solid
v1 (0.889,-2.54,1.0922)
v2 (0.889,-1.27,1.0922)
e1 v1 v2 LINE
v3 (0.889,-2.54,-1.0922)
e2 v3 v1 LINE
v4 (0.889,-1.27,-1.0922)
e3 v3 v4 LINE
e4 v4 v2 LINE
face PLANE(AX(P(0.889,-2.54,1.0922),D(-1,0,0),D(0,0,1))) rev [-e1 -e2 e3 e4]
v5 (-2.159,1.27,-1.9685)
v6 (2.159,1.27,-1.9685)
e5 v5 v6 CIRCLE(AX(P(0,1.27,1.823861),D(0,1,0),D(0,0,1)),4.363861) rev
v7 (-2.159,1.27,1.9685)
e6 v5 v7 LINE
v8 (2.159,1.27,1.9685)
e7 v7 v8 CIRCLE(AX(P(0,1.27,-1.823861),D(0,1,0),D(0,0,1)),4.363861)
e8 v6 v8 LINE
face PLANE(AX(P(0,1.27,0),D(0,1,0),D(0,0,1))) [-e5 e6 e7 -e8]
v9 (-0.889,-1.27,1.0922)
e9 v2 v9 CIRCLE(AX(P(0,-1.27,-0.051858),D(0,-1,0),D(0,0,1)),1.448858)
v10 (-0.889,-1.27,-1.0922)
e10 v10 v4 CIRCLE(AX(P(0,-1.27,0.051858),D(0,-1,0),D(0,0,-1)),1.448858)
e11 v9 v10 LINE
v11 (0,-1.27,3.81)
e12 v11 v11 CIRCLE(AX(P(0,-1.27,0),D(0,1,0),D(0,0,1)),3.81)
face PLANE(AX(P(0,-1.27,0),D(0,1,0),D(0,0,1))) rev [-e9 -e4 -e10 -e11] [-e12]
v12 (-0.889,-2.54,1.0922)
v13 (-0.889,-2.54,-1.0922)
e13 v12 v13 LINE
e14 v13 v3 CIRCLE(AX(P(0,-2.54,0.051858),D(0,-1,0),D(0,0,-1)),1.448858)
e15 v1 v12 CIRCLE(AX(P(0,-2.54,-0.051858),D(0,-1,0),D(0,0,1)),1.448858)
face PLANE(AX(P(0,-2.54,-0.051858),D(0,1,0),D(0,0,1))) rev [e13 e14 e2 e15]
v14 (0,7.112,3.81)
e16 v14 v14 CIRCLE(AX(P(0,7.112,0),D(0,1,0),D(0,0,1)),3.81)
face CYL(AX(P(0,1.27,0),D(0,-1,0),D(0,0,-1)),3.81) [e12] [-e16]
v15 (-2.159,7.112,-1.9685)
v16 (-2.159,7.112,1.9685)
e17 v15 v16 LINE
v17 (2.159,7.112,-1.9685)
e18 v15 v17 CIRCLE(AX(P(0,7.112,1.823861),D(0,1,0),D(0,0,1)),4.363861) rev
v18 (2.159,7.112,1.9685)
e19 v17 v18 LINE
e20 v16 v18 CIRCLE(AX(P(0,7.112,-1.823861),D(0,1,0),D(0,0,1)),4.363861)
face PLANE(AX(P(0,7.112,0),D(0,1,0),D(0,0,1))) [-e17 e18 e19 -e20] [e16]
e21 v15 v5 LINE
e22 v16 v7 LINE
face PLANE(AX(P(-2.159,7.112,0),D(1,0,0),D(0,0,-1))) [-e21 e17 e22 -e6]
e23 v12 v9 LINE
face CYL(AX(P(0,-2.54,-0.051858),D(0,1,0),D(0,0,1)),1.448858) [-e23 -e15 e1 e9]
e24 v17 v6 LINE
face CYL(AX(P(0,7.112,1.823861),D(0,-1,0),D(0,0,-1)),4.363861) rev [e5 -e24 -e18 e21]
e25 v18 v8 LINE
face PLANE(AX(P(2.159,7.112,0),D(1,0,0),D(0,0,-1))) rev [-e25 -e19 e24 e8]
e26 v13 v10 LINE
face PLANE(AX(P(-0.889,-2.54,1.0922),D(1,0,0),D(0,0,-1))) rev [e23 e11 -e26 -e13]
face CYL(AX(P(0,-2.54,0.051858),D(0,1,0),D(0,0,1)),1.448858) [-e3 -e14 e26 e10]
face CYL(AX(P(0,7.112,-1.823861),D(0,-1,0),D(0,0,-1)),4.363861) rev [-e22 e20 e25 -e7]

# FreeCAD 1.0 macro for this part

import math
import FreeCAD as App
import Part
import Sketcher
from FreeCAD import Vector
Q = App.Units.Quantity

doc = App.newDocument("Part")
body = doc.addObject("PartDesign::Body", "Body")

sketch1 = body.newObject("Sketcher::SketchObject", "Sketch")
sketch1.AttachmentSupport = (doc.getObject("XZ_Plane"), [""])
sketch1.MapMode = "FlatFace"
sketch1.addGeometry(Part.Circle(Vector(0, 0, 0), Vector(0, 0, 1), 3.8), False)
sketch1.addConstraint(Sketcher.Constraint("Coincident", 0, 3, -1, 1))
sketch1.addConstraint(Sketcher.Constraint("Diameter", 0, Q("0.3 in")))
pad1 = body.newObject("PartDesign::Pad", "Pad")
pad1.Profile = sketch1
pad1.Length = Q("0.1 in")
pad1.Midplane = True

sketch2 = body.newObject("Sketcher::SketchObject", "Sketch001")
sketch2.AttachmentSupport = (doc.getObject("XZ_Plane"), [""])
sketch2.MapMode = "FlatFace"
sketch2.AttachmentOffset = App.Placement(Vector(0, 0, 0.05 * 25.4), App.Rotation())
sketch2.addGeometry(Part.LineSegment(Vector(-0.9, 1.1, 0), Vector(-0.9, -1.1, 0)), False)
sketch2.addGeometry(Part.ArcOfCircle(Part.Circle(Vector(0, 0.1, 0), Vector(0, 0, 1), 1.4), math.radians(-128), math.radians(-52)), False)
sketch2.addGeometry(Part.LineSegment(Vector(0.9, -1.1, 0), Vector(0.9, 1.1, 0)), False)
sketch2.addGeometry(Part.ArcOfCircle(Part.Circle(Vector(0, -0.1, 0), Vector(0, 0, 1), 1.4), math.radians(52), math.radians(128)), False)
sketch2.addConstraint(Sketcher.Constraint("Coincident", 0, 2, 1, 1))
sketch2.addConstraint(Sketcher.Constraint("Coincident", 1, 2, 2, 1))
sketch2.addConstraint(Sketcher.Constraint("Coincident", 2, 2, 3, 1))
sketch2.addConstraint(Sketcher.Constraint("Coincident", 3, 2, 0, 1))
sketch2.addConstraint(Sketcher.Constraint("Vertical", 0))
sketch2.addConstraint(Sketcher.Constraint("Vertical", 2))
sketch2.addConstraint(Sketcher.Constraint("Equal", 1, 3))
sketch2.addConstraint(Sketcher.Constraint("Symmetric", 1, 3, 3, 3, -1, 1))
sketch2.addConstraint(Sketcher.Constraint("Symmetric", 0, 2, 1, 2, -2))
sketch2.addConstraint(Sketcher.Constraint("DistanceY", 0, 2, 0, 1, Q("0.086 in")))
sketch2.addConstraint(Sketcher.Constraint("DistanceX", 0, 2, 1, 2, Q("0.07 in")))
sketch2.addConstraint(Sketcher.Constraint("Radius", 1, 1.448858))
pad2 = body.newObject("PartDesign::Pad", "Pad001")
pad2.Profile = sketch2
pad2.Length = Q("0.05 in")

sketch3 = body.newObject("Sketcher::SketchObject", "Sketch002")
sketch3.AttachmentSupport = (doc.getObject("XZ_Plane"), [""])
sketch3.MapMode = "FlatFace"
sketch3.AttachmentOffset = App.Placement(Vector(0, 0, -0.28 * 25.4), App.Rotation())
sketch3.addGeometry(Part.Circle(Vector(0, 0, 0), Vector(0, 0, 1), 3.8), False)
sketch3.addGeometry(Part.LineSegment(Vector(-2.2, 2, 0), Vector(-2.2, -2, 0)), False)
sketch3.addGeometry(Part.ArcOfCircle(Part.Circle(Vector(0, 1.8, 0), Vector(0, 0, 1), 4.4), math.radians(-120), math.radians(-60)), False)
sketch3.addGeometry(Part.LineSegment(Vector(2.2, -2, 0), Vector(2.2, 2, 0)), False)
sketch3.addGeometry(Part.ArcOfCircle(Part.Circle(Vector(0, -1.8, 0), Vector(0, 0, 1), 4.4), math.radians(60), math.radians(120)), False)
sketch3.addConstraint(Sketcher.Constraint("Coincident", 1, 2, 2, 1))
sketch3.addConstraint(Sketcher.Constraint("Coincident", 2, 2, 3, 1))
sketch3.addConstraint(Sketcher.Constraint("Coincident", 3, 2, 4, 1))
sketch3.addConstraint(Sketcher.Constraint("Coincident", 4, 2, 1, 1))
sketch3.addConstraint(Sketcher.Constraint("Vertical", 1))
sketch3.addConstraint(Sketcher.Constraint("Vertical", 3))
sketch3.addConstraint(Sketcher.Constraint("Coincident", 0, 3, -1, 1))
sketch3.addConstraint(Sketcher.Constraint("Equal", 2, 4))
sketch3.addConstraint(Sketcher.Constraint("Symmetric", 2, 3, 4, 3, -1, 1))
sketch3.addConstraint(Sketcher.Constraint("Symmetric", 1, 2, 2, 2, -2))
sketch3.addConstraint(Sketcher.Constraint("Diameter", 0, Q("0.3 in")))
sketch3.addConstraint(Sketcher.Constraint("DistanceY", 1, 2, 1, 1, Q("0.155 in")))
sketch3.addConstraint(Sketcher.Constraint("DistanceX", 1, 2, 2, 2, Q("0.17 in")))
sketch3.addConstraint(Sketcher.Constraint("Radius", 2, 4.363861))
pad3 = body.newObject("PartDesign::Pad", "Pad002")
pad3.Profile = sketch3
pad3.Length = Q("0.23 in")

doc.recompute()
